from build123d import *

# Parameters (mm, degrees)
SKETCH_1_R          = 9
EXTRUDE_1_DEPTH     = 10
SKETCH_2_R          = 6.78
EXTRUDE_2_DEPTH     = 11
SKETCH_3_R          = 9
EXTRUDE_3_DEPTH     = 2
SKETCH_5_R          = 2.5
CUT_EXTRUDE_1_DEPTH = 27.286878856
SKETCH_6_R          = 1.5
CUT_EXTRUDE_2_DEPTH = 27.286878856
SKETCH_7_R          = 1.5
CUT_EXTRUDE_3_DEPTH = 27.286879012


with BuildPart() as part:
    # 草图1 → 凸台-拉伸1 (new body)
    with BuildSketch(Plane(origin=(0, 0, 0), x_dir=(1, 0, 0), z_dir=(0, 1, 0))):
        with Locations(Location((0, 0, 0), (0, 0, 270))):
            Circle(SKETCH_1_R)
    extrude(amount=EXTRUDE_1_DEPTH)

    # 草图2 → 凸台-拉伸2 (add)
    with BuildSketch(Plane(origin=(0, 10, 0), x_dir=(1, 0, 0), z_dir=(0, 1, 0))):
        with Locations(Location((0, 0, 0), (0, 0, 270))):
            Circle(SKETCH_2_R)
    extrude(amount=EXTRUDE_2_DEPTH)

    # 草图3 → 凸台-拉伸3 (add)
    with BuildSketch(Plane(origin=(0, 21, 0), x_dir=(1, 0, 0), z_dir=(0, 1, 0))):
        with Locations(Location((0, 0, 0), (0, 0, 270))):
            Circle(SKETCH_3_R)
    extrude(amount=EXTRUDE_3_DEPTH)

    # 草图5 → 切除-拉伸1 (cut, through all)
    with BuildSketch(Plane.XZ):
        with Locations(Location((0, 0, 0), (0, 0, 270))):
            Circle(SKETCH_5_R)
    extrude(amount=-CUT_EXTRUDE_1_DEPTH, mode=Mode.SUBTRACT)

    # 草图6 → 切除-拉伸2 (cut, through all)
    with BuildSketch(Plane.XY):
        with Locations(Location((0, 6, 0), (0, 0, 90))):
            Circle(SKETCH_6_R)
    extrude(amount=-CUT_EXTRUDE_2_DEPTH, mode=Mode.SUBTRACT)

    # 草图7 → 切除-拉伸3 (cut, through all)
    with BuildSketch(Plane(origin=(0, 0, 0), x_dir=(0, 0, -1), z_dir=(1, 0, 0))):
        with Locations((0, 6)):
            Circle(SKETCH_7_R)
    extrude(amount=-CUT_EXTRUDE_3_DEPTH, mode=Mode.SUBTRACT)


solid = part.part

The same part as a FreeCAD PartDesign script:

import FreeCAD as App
import Part
import Sketcher
Q = App.Units.Quantity

doc = App.newDocument("Part")
body = doc.addObject("PartDesign::Body", "Body")

# Sketch on XZ plane
sketch1 = body.newObject("Sketcher::SketchObject", "Sketch")
sketch1.AttachmentSupport = (doc.getObject("XZ_Plane"), [""])
sketch1.MapMode = "FlatFace"
sketch1.addGeometry(Part.Circle(App.Vector(0, 0, 0), App.Vector(0, 0, 1), 9), False)
sketch1.addConstraint([
    Sketcher.Constraint("Coincident", 0, 3, -1, 1),
    Sketcher.Constraint("Diameter", 0, Q("18 mm")),
])
pad1 = body.newObject("PartDesign::Pad", "Pad")
pad1.Profile = sketch1
pad1.Length = 10
pad1.Reversed = True

# Sketch on XZ plane
sketch2 = body.newObject("Sketcher::SketchObject", "Sketch001")
sketch2.AttachmentSupport = (doc.getObject("XZ_Plane"), [""])
sketch2.MapMode = "FlatFace"
sketch2.AttachmentOffset = App.Placement(App.Vector(0, 0, -10), App.Rotation())
sketch2.addGeometry(Part.Circle(App.Vector(0, 0, 0), App.Vector(0, 0, 1), 7), False)
sketch2.addConstraint([
    Sketcher.Constraint("Coincident", 0, 3, -1, 1),
    Sketcher.Constraint("Diameter", 0, Q("13.56 mm")),
])
pad2 = body.newObject("PartDesign::Pad", "Pad001")
pad2.Profile = sketch2
pad2.Length = 11
pad2.Reversed = True

# Sketch on XZ plane
sketch3 = body.newObject("Sketcher::SketchObject", "Sketch002")
sketch3.AttachmentSupport = (doc.getObject("XZ_Plane"), [""])
sketch3.MapMode = "FlatFace"
sketch3.AttachmentOffset = App.Placement(App.Vector(0, 0, -21), App.Rotation())
sketch3.addGeometry(Part.Circle(App.Vector(0, 0, 0), App.Vector(0, 0, 1), 9), False)
sketch3.addConstraint([
    Sketcher.Constraint("Coincident", 0, 3, -1, 1),
    Sketcher.Constraint("Diameter", 0, Q("18 mm")),
])
pad3 = body.newObject("PartDesign::Pad", "Pad002")
pad3.Profile = sketch3
pad3.Length = 2
pad3.Reversed = True

# Sketch on XZ plane
sketch4 = body.newObject("Sketcher::SketchObject", "Sketch003")
sketch4.AttachmentSupport = (doc.getObject("XZ_Plane"), [""])
sketch4.MapMode = "FlatFace"
sketch4.addGeometry(Part.Circle(App.Vector(0, 0, 0), App.Vector(0, 0, 1), 2.5), False)
sketch4.addConstraint([
    Sketcher.Constraint("Coincident", 0, 3, -1, 1),
    Sketcher.Constraint("Diameter", 0, Q("5 mm")),
])
pocket1 = body.newObject("PartDesign::Pocket", "Pocket")
pocket1.Profile = sketch4
pocket1.Type = "ThroughAll"

# Sketch on XY plane
sketch5 = body.newObject("Sketcher::SketchObject", "Sketch004")
sketch5.AttachmentSupport = (doc.getObject("XY_Plane"), [""])
sketch5.MapMode = "FlatFace"
sketch5.addGeometry(Part.Circle(App.Vector(0, 6, 0), App.Vector(0, 0, 1), 1.5), False)
sketch5.addConstraint([
    Sketcher.Constraint("PointOnObject", 0, 3, -2),
    Sketcher.Constraint("Diameter", 0, Q("3 mm")),
    Sketcher.Constraint("DistanceY", -1, 1, 0, 3, Q("6 mm")),
])
pocket2 = body.newObject("PartDesign::Pocket", "Pocket001")
pocket2.Profile = sketch5
pocket2.Type = "ThroughAll"

# Sketch on YZ plane
sketch6 = body.newObject("Sketcher::SketchObject", "Sketch005")
sketch6.AttachmentSupport = (doc.getObject("YZ_Plane"), [""])
sketch6.MapMode = "FlatFace"
sketch6.addGeometry(Part.Circle(App.Vector(6, 0, 0), App.Vector(0, 0, 1), 1.5), False)
sketch6.addConstraint([
    Sketcher.Constraint("PointOnObject", 0, 3, -1),
    Sketcher.Constraint("Diameter", 0, Q("3 mm")),
    Sketcher.Constraint("DistanceX", -1, 1, 0, 3, Q("6 mm")),
])
pocket3 = body.newObject("PartDesign::Pocket", "Pocket002")
pocket3.Profile = sketch6
pocket3.Type = "ThroughAll"

doc.recompute()
